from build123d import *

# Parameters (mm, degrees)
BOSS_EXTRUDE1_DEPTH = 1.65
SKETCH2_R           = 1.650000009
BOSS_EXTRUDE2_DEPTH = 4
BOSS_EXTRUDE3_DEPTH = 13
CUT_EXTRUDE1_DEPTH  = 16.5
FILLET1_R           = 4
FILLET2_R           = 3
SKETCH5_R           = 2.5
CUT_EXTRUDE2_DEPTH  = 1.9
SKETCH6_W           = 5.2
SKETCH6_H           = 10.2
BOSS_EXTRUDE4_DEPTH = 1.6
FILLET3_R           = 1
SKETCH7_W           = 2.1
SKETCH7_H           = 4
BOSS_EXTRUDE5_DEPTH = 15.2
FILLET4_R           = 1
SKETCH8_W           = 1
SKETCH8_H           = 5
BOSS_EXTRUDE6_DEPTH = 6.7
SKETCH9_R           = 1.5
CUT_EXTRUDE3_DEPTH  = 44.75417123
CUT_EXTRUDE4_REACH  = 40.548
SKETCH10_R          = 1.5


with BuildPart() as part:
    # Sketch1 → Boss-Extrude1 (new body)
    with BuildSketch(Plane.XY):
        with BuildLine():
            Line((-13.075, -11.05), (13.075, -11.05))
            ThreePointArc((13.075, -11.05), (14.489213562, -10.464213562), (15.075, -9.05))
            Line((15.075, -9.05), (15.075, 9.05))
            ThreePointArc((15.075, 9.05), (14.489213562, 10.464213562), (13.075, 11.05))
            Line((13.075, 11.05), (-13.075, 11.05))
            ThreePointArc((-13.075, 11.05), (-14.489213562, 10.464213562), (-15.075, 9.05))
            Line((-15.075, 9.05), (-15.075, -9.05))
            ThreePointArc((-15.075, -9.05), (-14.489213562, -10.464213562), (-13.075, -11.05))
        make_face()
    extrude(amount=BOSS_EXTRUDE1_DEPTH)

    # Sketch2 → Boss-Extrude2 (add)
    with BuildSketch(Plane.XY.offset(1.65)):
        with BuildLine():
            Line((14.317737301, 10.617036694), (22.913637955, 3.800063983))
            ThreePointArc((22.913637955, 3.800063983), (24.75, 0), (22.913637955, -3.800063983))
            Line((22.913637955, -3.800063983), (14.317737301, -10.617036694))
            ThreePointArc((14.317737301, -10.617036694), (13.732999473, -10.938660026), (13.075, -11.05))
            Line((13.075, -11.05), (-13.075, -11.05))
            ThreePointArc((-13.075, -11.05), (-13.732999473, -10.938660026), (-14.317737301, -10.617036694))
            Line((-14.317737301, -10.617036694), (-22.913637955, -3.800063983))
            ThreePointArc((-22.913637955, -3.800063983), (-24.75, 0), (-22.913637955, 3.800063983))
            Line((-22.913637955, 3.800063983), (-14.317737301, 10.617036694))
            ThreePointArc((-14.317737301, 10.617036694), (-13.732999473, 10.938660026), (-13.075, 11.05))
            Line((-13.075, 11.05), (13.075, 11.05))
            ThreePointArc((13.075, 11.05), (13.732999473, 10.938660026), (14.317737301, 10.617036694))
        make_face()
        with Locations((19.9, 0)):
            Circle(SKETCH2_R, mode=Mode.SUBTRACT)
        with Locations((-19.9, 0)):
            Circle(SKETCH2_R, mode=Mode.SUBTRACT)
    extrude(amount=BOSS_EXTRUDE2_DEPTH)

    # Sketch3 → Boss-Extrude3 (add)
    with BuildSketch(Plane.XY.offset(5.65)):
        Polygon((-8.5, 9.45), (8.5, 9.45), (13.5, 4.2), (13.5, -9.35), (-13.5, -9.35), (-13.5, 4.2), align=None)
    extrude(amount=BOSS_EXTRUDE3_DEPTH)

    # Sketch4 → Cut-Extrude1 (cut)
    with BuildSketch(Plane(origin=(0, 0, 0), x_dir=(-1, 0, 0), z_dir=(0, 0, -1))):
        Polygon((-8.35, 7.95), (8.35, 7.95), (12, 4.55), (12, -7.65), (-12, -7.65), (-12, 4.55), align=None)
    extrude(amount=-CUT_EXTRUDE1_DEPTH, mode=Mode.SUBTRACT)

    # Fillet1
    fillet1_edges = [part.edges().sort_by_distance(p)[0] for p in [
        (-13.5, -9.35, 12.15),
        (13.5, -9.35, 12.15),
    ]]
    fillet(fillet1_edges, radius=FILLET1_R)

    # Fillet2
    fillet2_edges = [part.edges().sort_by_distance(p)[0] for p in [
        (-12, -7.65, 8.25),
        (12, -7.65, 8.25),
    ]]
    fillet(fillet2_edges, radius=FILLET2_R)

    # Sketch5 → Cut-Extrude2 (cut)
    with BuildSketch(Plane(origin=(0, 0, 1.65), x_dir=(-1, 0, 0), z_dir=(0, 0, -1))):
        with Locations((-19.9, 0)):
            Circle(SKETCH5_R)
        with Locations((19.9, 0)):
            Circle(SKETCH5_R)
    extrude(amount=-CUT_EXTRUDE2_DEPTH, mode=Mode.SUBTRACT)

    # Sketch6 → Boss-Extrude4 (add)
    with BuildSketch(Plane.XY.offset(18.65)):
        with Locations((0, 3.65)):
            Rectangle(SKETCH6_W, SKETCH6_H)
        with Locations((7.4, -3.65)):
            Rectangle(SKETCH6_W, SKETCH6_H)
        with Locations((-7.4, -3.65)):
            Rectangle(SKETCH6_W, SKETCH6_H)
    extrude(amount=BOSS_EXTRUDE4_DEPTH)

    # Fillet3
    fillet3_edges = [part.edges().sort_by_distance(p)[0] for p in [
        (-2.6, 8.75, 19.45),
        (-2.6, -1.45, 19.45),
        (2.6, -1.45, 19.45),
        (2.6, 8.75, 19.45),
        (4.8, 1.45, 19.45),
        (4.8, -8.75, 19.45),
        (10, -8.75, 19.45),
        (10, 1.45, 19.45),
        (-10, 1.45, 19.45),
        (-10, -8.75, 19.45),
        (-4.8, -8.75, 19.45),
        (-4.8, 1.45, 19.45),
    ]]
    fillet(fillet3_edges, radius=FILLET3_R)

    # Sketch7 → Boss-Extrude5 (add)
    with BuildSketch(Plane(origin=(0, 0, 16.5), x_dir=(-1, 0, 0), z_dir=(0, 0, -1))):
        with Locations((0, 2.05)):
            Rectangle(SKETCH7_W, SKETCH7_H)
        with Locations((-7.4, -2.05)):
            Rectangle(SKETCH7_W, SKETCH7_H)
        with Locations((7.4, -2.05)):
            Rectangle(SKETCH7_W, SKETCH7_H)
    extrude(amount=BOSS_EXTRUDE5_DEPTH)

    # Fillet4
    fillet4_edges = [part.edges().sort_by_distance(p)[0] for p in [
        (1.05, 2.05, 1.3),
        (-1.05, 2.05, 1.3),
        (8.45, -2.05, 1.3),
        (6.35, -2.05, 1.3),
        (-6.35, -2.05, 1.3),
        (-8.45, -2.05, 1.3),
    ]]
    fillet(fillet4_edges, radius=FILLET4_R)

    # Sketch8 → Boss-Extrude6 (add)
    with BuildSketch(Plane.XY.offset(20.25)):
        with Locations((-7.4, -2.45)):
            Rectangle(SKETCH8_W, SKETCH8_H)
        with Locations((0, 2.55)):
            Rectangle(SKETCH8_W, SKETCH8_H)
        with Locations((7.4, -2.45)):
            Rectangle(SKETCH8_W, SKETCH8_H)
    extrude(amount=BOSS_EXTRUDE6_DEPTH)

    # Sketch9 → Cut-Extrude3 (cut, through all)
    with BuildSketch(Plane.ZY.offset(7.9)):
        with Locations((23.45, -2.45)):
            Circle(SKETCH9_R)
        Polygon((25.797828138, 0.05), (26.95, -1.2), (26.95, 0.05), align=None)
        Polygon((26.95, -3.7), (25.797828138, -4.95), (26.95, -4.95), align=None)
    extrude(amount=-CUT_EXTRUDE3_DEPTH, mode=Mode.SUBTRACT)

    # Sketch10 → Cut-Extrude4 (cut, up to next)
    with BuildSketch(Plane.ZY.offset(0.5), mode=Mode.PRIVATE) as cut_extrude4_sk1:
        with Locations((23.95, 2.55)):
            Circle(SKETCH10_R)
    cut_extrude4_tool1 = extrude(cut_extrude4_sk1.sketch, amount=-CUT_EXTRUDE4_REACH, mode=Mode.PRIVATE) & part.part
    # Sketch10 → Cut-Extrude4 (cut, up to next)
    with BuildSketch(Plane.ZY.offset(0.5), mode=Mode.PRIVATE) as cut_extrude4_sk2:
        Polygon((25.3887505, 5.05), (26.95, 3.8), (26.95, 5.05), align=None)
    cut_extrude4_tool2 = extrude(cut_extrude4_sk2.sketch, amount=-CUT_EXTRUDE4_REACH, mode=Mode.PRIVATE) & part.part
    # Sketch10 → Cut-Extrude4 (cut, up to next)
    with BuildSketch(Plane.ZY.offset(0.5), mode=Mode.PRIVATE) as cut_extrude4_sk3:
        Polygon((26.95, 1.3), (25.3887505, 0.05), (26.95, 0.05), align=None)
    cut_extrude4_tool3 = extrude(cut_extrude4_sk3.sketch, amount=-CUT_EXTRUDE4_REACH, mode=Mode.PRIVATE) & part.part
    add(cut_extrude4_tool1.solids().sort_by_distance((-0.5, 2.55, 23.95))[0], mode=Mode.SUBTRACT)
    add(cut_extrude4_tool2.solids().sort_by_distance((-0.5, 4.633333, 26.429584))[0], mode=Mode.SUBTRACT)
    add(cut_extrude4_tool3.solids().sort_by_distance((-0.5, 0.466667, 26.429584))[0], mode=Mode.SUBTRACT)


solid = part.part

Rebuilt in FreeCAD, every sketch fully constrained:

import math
import FreeCAD as App
import Part
import Sketcher


def edges_at(feature, points):
    """Names of the edges that pass closest to the given points."""
    edges = feature.Shape.Edges
    near = lambda p: min(range(len(edges)), key=lambda i: edges[i].distToShape(Part.Vertex(*p))[0])
    return sorted({f"Edge{near(p) + 1}" for p in points})

doc = App.newDocument("Part")
body = doc.addObject("PartDesign::Body", "Body")

sketch1 = body.newObject("Sketcher::SketchObject", "Sketch")
sketch1.AttachmentSupport = (doc.getObject("XY_Plane"), [""])
sketch1.MapMode = "FlatFace"
sketch1.addGeometry([
    Part.LineSegment(App.Vector(-13.1, -11.1, 0), App.Vector(13.1, -11.1, 0)),
    Part.ArcOfCircle(Part.Circle(App.Vector(13.1, -9, 0), App.Vector(0, 0, 1), 2), math.radians(-90), math.radians(0)),
    Part.LineSegment(App.Vector(15.1, -9.1, 0), App.Vector(15.1, 9.1, 0)),
    Part.ArcOfCircle(Part.Circle(App.Vector(13.1, 9, 0), App.Vector(0, 0, 1), 2), math.radians(0), math.radians(90)),
    Part.LineSegment(App.Vector(13.1, 11.1, 0), App.Vector(-13.1, 11.1, 0)),
    Part.ArcOfCircle(Part.Circle(App.Vector(-13.1, 9, 0), App.Vector(0, 0, 1), 2), math.radians(90), math.radians(180)),
    Part.LineSegment(App.Vector(-15.1, 9.1, 0), App.Vector(-15.1, -9.1, 0)),
    Part.ArcOfCircle(Part.Circle(App.Vector(-13.1, -9, 0), App.Vector(0, 0, 1), 2), math.radians(-180), math.radians(-90)),
], False)
sketch1.addConstraint([
    Sketcher.Constraint("Tangent", 0, 2, 1, 1),
    Sketcher.Constraint("Tangent", 1, 2, 2, 1),
    Sketcher.Constraint("Tangent", 2, 2, 3, 1),
    Sketcher.Constraint("Tangent", 3, 2, 4, 1),
    Sketcher.Constraint("Tangent", 4, 2, 5, 1),
    Sketcher.Constraint("Tangent", 5, 2, 6, 1),
    Sketcher.Constraint("Tangent", 6, 2, 7, 1),
    Sketcher.Constraint("Tangent", 7, 2, 0, 1),
    Sketcher.Constraint("Horizontal", 0),
    Sketcher.Constraint("Vertical", 2),
    Sketcher.Constraint("Horizontal", 4),
    Sketcher.Constraint("Vertical", 6),
    Sketcher.Constraint("Equal", 1, 3),
    Sketcher.Constraint("Equal", 3, 5),
    Sketcher.Constraint("Equal", 5, 7),
    Sketcher.Constraint("Symmetric", 1, 3, 5, 3, -1, 1),
    Sketcher.Constraint("Radius", 1, 2.0),
    Sketcher.Constraint("DistanceY", 2, 1, 2, 2, 18.1),
    Sketcher.Constraint("DistanceX", 0, 1, 0, 2, 26.15),
])
pad1 = body.newObject("PartDesign::Pad", "Pad")
pad1.Profile = sketch1
pad1.Length = 1.65

sketch2 = body.newObject("Sketcher::SketchObject", "Sketch001")
sketch2.AttachmentSupport = (doc.getObject("XY_Plane"), [""])
sketch2.MapMode = "FlatFace"
sketch2.AttachmentOffset = App.Placement(App.Vector(0, 0, 1.65), App.Rotation())
sketch2.addGeometry([
    Part.LineSegment(App.Vector(22.9, 3.8, 0), App.Vector(14.3, 10.6, 0)),
    Part.ArcOfCircle(Part.Circle(App.Vector(13.1, 9.1, 0), App.Vector(0, 0, 1), 2), math.radians(52), math.radians(90)),
    Part.LineSegment(App.Vector(13.1, 11.1, 0), App.Vector(-13.1, 11.1, 0)),
    Part.ArcOfCircle(Part.Circle(App.Vector(-13.1, 9.1, 0), App.Vector(0, 0, 1), 2), math.radians(90), math.radians(128)),
    Part.LineSegment(App.Vector(-14.3, 10.6, 0), App.Vector(-22.9, 3.8, 0)),
    Part.ArcOfCircle(Part.Circle(App.Vector(-19.9, 0, 0), App.Vector(0, 0, 1), 4.8), math.radians(128), math.radians(232)),
    Part.LineSegment(App.Vector(-22.9, -3.8, 0), App.Vector(-14.3, -10.6, 0)),
    Part.ArcOfCircle(Part.Circle(App.Vector(-13.1, -9.1, 0), App.Vector(0, 0, 1), 2), math.radians(-128), math.radians(-90)),
    Part.LineSegment(App.Vector(-13.1, -11.1, 0), App.Vector(13.1, -11.1, 0)),
    Part.ArcOfCircle(Part.Circle(App.Vector(13.1, -9.1, 0), App.Vector(0, 0, 1), 2), math.radians(-90), math.radians(-52)),
    Part.LineSegment(App.Vector(14.3, -10.6, 0), App.Vector(22.9, -3.8, 0)),
    Part.ArcOfCircle(Part.Circle(App.Vector(19.9, 0, 0), App.Vector(0, 0, 1), 4.8), math.radians(-52), math.radians(52)),
    Part.Circle(App.Vector(19.9, 0, 0), App.Vector(0, 0, 1), 1.7),
    Part.Circle(App.Vector(-19.9, 0, 0), App.Vector(0, 0, 1), 1.7),
], False)
sketch2.addConstraint([
    Sketcher.Constraint("Tangent", 0, 2, 1, 1),
    Sketcher.Constraint("Tangent", 1, 2, 2, 1),
    Sketcher.Constraint("Tangent", 2, 2, 3, 1),
    Sketcher.Constraint("Tangent", 3, 2, 4, 1),
    Sketcher.Constraint("Tangent", 4, 2, 5, 1),
    Sketcher.Constraint("Tangent", 5, 2, 6, 1),
    Sketcher.Constraint("Tangent", 6, 2, 7, 1),
    Sketcher.Constraint("Tangent", 7, 2, 8, 1),
    Sketcher.Constraint("Tangent", 8, 2, 9, 1),
    Sketcher.Constraint("Tangent", 9, 2, 10, 1),
    Sketcher.Constraint("Tangent", 10, 2, 11, 1),
    Sketcher.Constraint("Tangent", 11, 2, 0, 1),
    Sketcher.Constraint("Horizontal", 2),
    Sketcher.Constraint("Horizontal", 8),
    Sketcher.Constraint("Coincident", 12, 3, 11, 3),
    Sketcher.Constraint("Coincident", 13, 3, 5, 3),
    Sketcher.Constraint("Equal", 1, 3),
    Sketcher.Constraint("Equal", 3, 7),
    Sketcher.Constraint("Equal", 7, 9),
    Sketcher.Constraint("Equal", 5, 11),
    Sketcher.Constraint("Equal", 12, 13),
    Sketcher.Constraint("Symmetric", 1, 3, 7, 3, -1, 1),
    Sketcher.Constraint("Symmetric", 5, 3, 11, 3, -1, 1),
    Sketcher.Constraint("Symmetric", 0, 2, 3, 2, -2),
    Sketcher.Constraint("Parallel", 4, 10),
    Sketcher.Constraint("Radius", 1, 2.0),
    Sketcher.Constraint("Diameter", 12, 3.3),
    Sketcher.Constraint("Radius", 5, 4.85),
    Sketcher.Constraint("DistanceX", 2, 2, 2, 1, 26.15),
    Sketcher.Constraint("DistanceX", 5, 3, -1, 1, 19.9),
    Sketcher.Constraint("DistanceY", 7, 3, 3, 3, 18.1),
])
pad2 = body.newObject("PartDesign::Pad", "Pad001")
pad2.Profile = sketch2
pad2.Length = 4

sketch3 = body.newObject("Sketcher::SketchObject", "Sketch002")
sketch3.AttachmentSupport = (doc.getObject("XY_Plane"), [""])
sketch3.MapMode = "FlatFace"
sketch3.AttachmentOffset = App.Placement(App.Vector(0, 0, 5.65), App.Rotation())
sketch3.addGeometry([
    Part.LineSegment(App.Vector(8, 9, 0), App.Vector(-8, 9, 0)),
    Part.LineSegment(App.Vector(-8, 9, 0), App.Vector(-14, 4, 0)),
    Part.LineSegment(App.Vector(-14, 4, 0), App.Vector(-14, -9, 0)),
    Part.LineSegment(App.Vector(-14, -9, 0), App.Vector(14, -9, 0)),
    Part.LineSegment(App.Vector(14, -9, 0), App.Vector(14, 4, 0)),
    Part.LineSegment(App.Vector(14, 4, 0), App.Vector(8, 9, 0)),
], False)
sketch3.addConstraint([
    Sketcher.Constraint("Coincident", 0, 2, 1, 1),
    Sketcher.Constraint("Coincident", 1, 2, 2, 1),
    Sketcher.Constraint("Coincident", 2, 2, 3, 1),
    Sketcher.Constraint("Coincident", 3, 2, 4, 1),
    Sketcher.Constraint("Coincident", 4, 2, 5, 1),
    Sketcher.Constraint("Coincident", 5, 2, 0, 1),
    Sketcher.Constraint("Horizontal", 0),
    Sketcher.Constraint("Vertical", 2),
    Sketcher.Constraint("Horizontal", 3),
    Sketcher.Constraint("Vertical", 4),
    Sketcher.Constraint("Symmetric", 1, 2, 4, 2, -2),
    Sketcher.Constraint("Equal", 1, 5),
    Sketcher.Constraint("DistanceX", 0, 2, 0, 1, 17.0),
    Sketcher.Constraint("DistanceX", 3, 1, 3, 2, 27.0),
    Sketcher.Constraint("DistanceY", 2, 2, 2, 1, 13.55),
    Sketcher.Constraint("DistanceY", -1, 1, 1, 2, 4.2),
    Sketcher.Constraint("DistanceY", 2, 2, 0, 2, 18.8),
])
pad3 = body.newObject("PartDesign::Pad", "Pad002")
pad3.Profile = sketch3
pad3.Length = 13

sketch4 = body.newObject("Sketcher::SketchObject", "Sketch003")
sketch4.AttachmentSupport = (doc.getObject("XY_Plane"), [""])
sketch4.MapMode = "FlatFace"
sketch4.addGeometry([
    Part.LineSegment(App.Vector(-8.3, 8, 0), App.Vector(8.3, 8, 0)),
    Part.LineSegment(App.Vector(8.3, 8, 0), App.Vector(12, 4.5, 0)),
    Part.LineSegment(App.Vector(12, 4.5, 0), App.Vector(12, -7.7, 0)),
    Part.LineSegment(App.Vector(12, -7.7, 0), App.Vector(-12, -7.7, 0)),
    Part.LineSegment(App.Vector(-12, -7.7, 0), App.Vector(-12, 4.5, 0)),
    Part.LineSegment(App.Vector(-12, 4.5, 0), App.Vector(-8.3, 8, 0)),
], False)
sketch4.addConstraint([
    Sketcher.Constraint("Coincident", 0, 2, 1, 1),
    Sketcher.Constraint("Coincident", 1, 2, 2, 1),
    Sketcher.Constraint("Coincident", 2, 2, 3, 1),
    Sketcher.Constraint("Coincident", 3, 2, 4, 1),
    Sketcher.Constraint("Coincident", 4, 2, 5, 1),
    Sketcher.Constraint("Coincident", 5, 2, 0, 1),
    Sketcher.Constraint("Horizontal", 0),
    Sketcher.Constraint("Vertical", 2),
    Sketcher.Constraint("Horizontal", 3),
    Sketcher.Constraint("Vertical", 4),
    Sketcher.Constraint("Symmetric", 1, 2, 4, 2, -2),
    Sketcher.Constraint("Equal", 1, 5),
    Sketcher.Constraint("DistanceX", 3, 2, 3, 1, 24.0),
    Sketcher.Constraint("DistanceX", 0, 1, 0, 2, 16.7),
    Sketcher.Constraint("DistanceY", 2, 2, 2, 1, 12.2),
    Sketcher.Constraint("DistanceY", 1, 2, 0, 2, 3.4),
    Sketcher.Constraint("DistanceY", -1, 1, 0, 2, 7.95),
])
pocket1 = body.newObject("PartDesign::Pocket", "Pocket")
pocket1.Profile = sketch4
pocket1.Length = 16.5
pocket1.Reversed = True
doc.recompute()

fillet = body.newObject("PartDesign::Fillet", "Fillet")
fillet.Base = (pocket1, edges_at(pocket1, [(-13.5, -9.35, 12.15), (13.5, -9.35, 12.15)]))
fillet.Radius = 4
doc.recompute()

fillet2 = body.newObject("PartDesign::Fillet", "Fillet001")
fillet2.Base = (fillet, edges_at(fillet, [(-12, -7.65, 8.25), (12, -7.65, 8.25)]))
fillet2.Radius = 3

sketch5 = body.newObject("Sketcher::SketchObject", "Sketch004")
sketch5.AttachmentSupport = (doc.getObject("XY_Plane"), [""])
sketch5.MapMode = "FlatFace"
sketch5.AttachmentOffset = App.Placement(App.Vector(0, 0, 1.65), App.Rotation())
sketch5.addGeometry([
    Part.Circle(App.Vector(19.9, 0, 0), App.Vector(0, 0, 1), 2.5),
    Part.Circle(App.Vector(-19.9, 0, 0), App.Vector(0, 0, 1), 2.5),
], False)
sketch5.addConstraint([
    Sketcher.Constraint("Equal", 0, 1),
    Sketcher.Constraint("Symmetric", 0, 3, 1, 3, -1, 1),
    Sketcher.Constraint("PointOnObject", 0, 3, -1),
    Sketcher.Constraint("Diameter", 0, 5.0),
    Sketcher.Constraint("DistanceX", -1, 1, 0, 3, 19.9),
])
pocket2 = body.newObject("PartDesign::Pocket", "Pocket001")
pocket2.Profile = sketch5
pocket2.Length = 1.9
pocket2.Reversed = True

sketch6 = body.newObject("Sketcher::SketchObject", "Sketch005")
sketch6.AttachmentSupport = (doc.getObject("XY_Plane"), [""])
sketch6.MapMode = "FlatFace"
sketch6.AttachmentOffset = App.Placement(App.Vector(0, 0, 18.65), App.Rotation())
sketch6.addGeometry([
    Part.LineSegment(App.Vector(-3, 9, 0), App.Vector(-3, -1, 0)),
    Part.LineSegment(App.Vector(-3, -1, 0), App.Vector(3, -1, 0)),
    Part.LineSegment(App.Vector(3, -1, 0), App.Vector(3, 9, 0)),
    Part.LineSegment(App.Vector(3, 9, 0), App.Vector(-3, 9, 0)),
    Part.LineSegment(App.Vector(5, 1, 0), App.Vector(5, -9, 0)),
    Part.LineSegment(App.Vector(5, -9, 0), App.Vector(10, -9, 0)),
    Part.LineSegment(App.Vector(10, -9, 0), App.Vector(10, 1, 0)),
    Part.LineSegment(App.Vector(10, 1, 0), App.Vector(5, 1, 0)),
    Part.LineSegment(App.Vector(-10, 1, 0), App.Vector(-10, -9, 0)),
    Part.LineSegment(App.Vector(-10, -9, 0), App.Vector(-5, -9, 0)),
    Part.LineSegment(App.Vector(-5, -9, 0), App.Vector(-5, 1, 0)),
    Part.LineSegment(App.Vector(-5, 1, 0), App.Vector(-10, 1, 0)),
], False)
sketch6.addConstraint([
    Sketcher.Constraint("Coincident", 0, 2, 1, 1),
    Sketcher.Constraint("Coincident", 1, 2, 2, 1),
    Sketcher.Constraint("Coincident", 2, 2, 3, 1),
    Sketcher.Constraint("Coincident", 3, 2, 0, 1),
    Sketcher.Constraint("Coincident", 4, 2, 5, 1),
    Sketcher.Constraint("Coincident", 5, 2, 6, 1),
    Sketcher.Constraint("Coincident", 6, 2, 7, 1),
    Sketcher.Constraint("Coincident", 7, 2, 4, 1),
    Sketcher.Constraint("Coincident", 8, 2, 9, 1),
    Sketcher.Constraint("Coincident", 9, 2, 10, 1),
    Sketcher.Constraint("Coincident", 10, 2, 11, 1),
    Sketcher.Constraint("Coincident", 11, 2, 8, 1),
    Sketcher.Constraint("Vertical", 0),
    Sketcher.Constraint("Horizontal", 1),
    Sketcher.Constraint("Vertical", 2),
    Sketcher.Constraint("Horizontal", 3),
    Sketcher.Constraint("Vertical", 4),
    Sketcher.Constraint("Horizontal", 5),
    Sketcher.Constraint("Vertical", 6),
    Sketcher.Constraint("Horizontal", 7),
    Sketcher.Constraint("Vertical", 8),
    Sketcher.Constraint("Horizontal", 9),
    Sketcher.Constraint("Vertical", 10),
    Sketcher.Constraint("Horizontal", 11),
    Sketcher.Constraint("Symmetric", 5, 2, 8, 2, -2),
    Sketcher.Constraint("Symmetric", 7, 2, 10, 2, -2),
    Sketcher.Constraint("Equal", 3, 5),
    Sketcher.Constraint("Equal", 2, 4),
    Sketcher.Constraint("DistanceX", 1, 1, 1, 2, 5.2),
    Sketcher.Constraint("DistanceY", 0, 2, 0, 1, 10.2),
    Sketcher.Constraint("DistanceX", -1, 1, 5, 2, 10.0),
    Sketcher.Constraint("DistanceX", 0, 2, -1, 1, 2.6),
    Sketcher.Constraint("DistanceY", 4, 2, 1, 2, 7.3),
    Sketcher.Constraint("DistanceY", 0, 2, -1, 1, 1.45),
])
pad4 = body.newObject("PartDesign::Pad", "Pad003")
pad4.Profile = sketch6
pad4.Length = 1.6
doc.recompute()

fillet3 = body.newObject("PartDesign::Fillet", "Fillet002")
fillet3.Base = (pad4, edges_at(pad4, [
    (-2.6, 8.75, 19.45),
    (-2.6, -1.45, 19.45),
    (2.6, -1.45, 19.45),
    (2.6, 8.75, 19.45),
    (4.8, 1.45, 19.45),
    (4.8, -8.75, 19.45),
    (10, -8.75, 19.45),
    (10, 1.45, 19.45),
    (-10, 1.45, 19.45),
    (-10, -8.75, 19.45),
    (-4.8, -8.75, 19.45),
    (-4.8, 1.45, 19.45),
]))
fillet3.Radius = 1

sketch7 = body.newObject("Sketcher::SketchObject", "Sketch006")
sketch7.AttachmentSupport = (doc.getObject("XY_Plane"), [""])
sketch7.MapMode = "FlatFace"
sketch7.AttachmentOffset = App.Placement(App.Vector(0, 0, 16.5), App.Rotation())
sketch7.addGeometry([
    Part.LineSegment(App.Vector(1.1, 4, 0), App.Vector(1.1, 0.1, 0)),
    Part.LineSegment(App.Vector(1.1, 0.1, 0), App.Vector(-1.1, 0.1, 0)),
    Part.LineSegment(App.Vector(-1.1, 0.1, 0), App.Vector(-1.1, 4, 0)),
    Part.LineSegment(App.Vector(-1.1, 4, 0), App.Vector(1.1, 4, 0)),
    Part.LineSegment(App.Vector(8.4, -0.1, 0), App.Vector(8.4, -4, 0)),
    Part.LineSegment(App.Vector(8.4, -4, 0), App.Vector(6.3, -4, 0)),
    Part.LineSegment(App.Vector(6.3, -4, 0), App.Vector(6.3, -0.1, 0)),
    Part.LineSegment(App.Vector(6.3, -0.1, 0), App.Vector(8.4, -0.1, 0)),
    Part.LineSegment(App.Vector(-6.3, -0.1, 0), App.Vector(-6.3, -4, 0)),
    Part.LineSegment(App.Vector(-6.3, -4, 0), App.Vector(-8.4, -4, 0)),
    Part.LineSegment(App.Vector(-8.4, -4, 0), App.Vector(-8.4, -0.1, 0)),
    Part.LineSegment(App.Vector(-8.4, -0.1, 0), App.Vector(-6.3, -0.1, 0)),
], False)
sketch7.addConstraint([
    Sketcher.Constraint("Coincident", 0, 2, 1, 1),
    Sketcher.Constraint("Coincident", 1, 2, 2, 1),
    Sketcher.Constraint("Coincident", 2, 2, 3, 1),
    Sketcher.Constraint("Coincident", 3, 2, 0, 1),
    Sketcher.Constraint("Coincident", 4, 2, 5, 1),
    Sketcher.Constraint("Coincident", 5, 2, 6, 1),
    Sketcher.Constraint("Coincident", 6, 2, 7, 1),
    Sketcher.Constraint("Coincident", 7, 2, 4, 1),
    Sketcher.Constraint("Coincident", 8, 2, 9, 1),
    Sketcher.Constraint("Coincident", 9, 2, 10, 1),
    Sketcher.Constraint("Coincident", 10, 2, 11, 1),
    Sketcher.Constraint("Coincident", 11, 2, 8, 1),
    Sketcher.Constraint("Vertical", 0),
    Sketcher.Constraint("Horizontal", 1),
    Sketcher.Constraint("Vertical", 2),
    Sketcher.Constraint("Horizontal", 3),
    Sketcher.Constraint("Vertical", 4),
    Sketcher.Constraint("Horizontal", 5),
    Sketcher.Constraint("Vertical", 6),
    Sketcher.Constraint("Horizontal", 7),
    Sketcher.Constraint("Vertical", 8),
    Sketcher.Constraint("Horizontal", 9),
    Sketcher.Constraint("Vertical", 10),
    Sketcher.Constraint("Horizontal", 11),
    Sketcher.Constraint("Symmetric", 5, 2, 8, 2, -2),
    Sketcher.Constraint("Symmetric", 7, 2, 10, 2, -2),
    Sketcher.Constraint("Equal", 3, 5),
    Sketcher.Constraint("Equal", 2, 4),
    Sketcher.Constraint("DistanceY", 0, 2, 0, 1, 4.0),
    Sketcher.Constraint("DistanceX", 1, 2, 1, 1, 2.1),
    Sketcher.Constraint("DistanceX", 0, 2, 4, 2, 7.4),
    Sketcher.Constraint("DistanceY", 4, 2, 0, 2, 4.1),
    Sketcher.Constraint("DistanceX", 8, 2, 1, 2, 5.3),
    Sketcher.Constraint("DistanceY", -1, 1, 0, 2, 0.05),
])
pad5 = body.newObject("PartDesign::Pad", "Pad004")
pad5.Profile = sketch7
pad5.Length = 15.2
pad5.Reversed = True
doc.recompute()

fillet4 = body.newObject("PartDesign::Fillet", "Fillet003")
fillet4.Base = (pad5, edges_at(pad5, [
    (1.05, 2.05, 1.3),
    (-1.05, 2.05, 1.3),
    (8.45, -2.05, 1.3),
    (6.35, -2.05, 1.3),
    (-6.35, -2.05, 1.3),
    (-8.45, -2.05, 1.3),
]))
fillet4.Radius = 1

sketch8 = body.newObject("Sketcher::SketchObject", "Sketch007")
sketch8.AttachmentSupport = (doc.getObject("XY_Plane"), [""])
sketch8.MapMode = "FlatFace"
sketch8.AttachmentOffset = App.Placement(App.Vector(0, 0, 20.25), App.Rotation())
sketch8.addGeometry([
    Part.LineSegment(App.Vector(-7.9, 0.1, 0), App.Vector(-7.9, -5, 0)),
    Part.LineSegment(App.Vector(-7.9, -5, 0), App.Vector(-6.9, -5, 0)),
    Part.LineSegment(App.Vector(-6.9, -5, 0), App.Vector(-6.9, 0.1, 0)),
    Part.LineSegment(App.Vector(-6.9, 0.1, 0), App.Vector(-7.9, 0.1, 0)),
    Part.LineSegment(App.Vector(-0.5, 5, 0), App.Vector(-0.5, 0.1, 0)),
    Part.LineSegment(App.Vector(-0.5, 0.1, 0), App.Vector(0.5, 0.1, 0)),
    Part.LineSegment(App.Vector(0.5, 0.1, 0), App.Vector(0.5, 5, 0)),
    Part.LineSegment(App.Vector(0.5, 5, 0), App.Vector(-0.5, 5, 0)),
    Part.LineSegment(App.Vector(6.9, 0.1, 0), App.Vector(6.9, -5, 0)),
    Part.LineSegment(App.Vector(6.9, -5, 0), App.Vector(7.9, -5, 0)),
    Part.LineSegment(App.Vector(7.9, -5, 0), App.Vector(7.9, 0.1, 0)),
    Part.LineSegment(App.Vector(7.9, 0.1, 0), App.Vector(6.9, 0.1, 0)),
], False)
sketch8.addConstraint([
    Sketcher.Constraint("Coincident", 0, 2, 1, 1),
    Sketcher.Constraint("Coincident", 1, 2, 2, 1),
    Sketcher.Constraint("Coincident", 2, 2, 3, 1),
    Sketcher.Constraint("Coincident", 3, 2, 0, 1),
    Sketcher.Constraint("Coincident", 4, 2, 5, 1),
    Sketcher.Constraint("Coincident", 5, 2, 6, 1),
    Sketcher.Constraint("Coincident", 6, 2, 7, 1),
    Sketcher.Constraint("Coincident", 7, 2, 4, 1),
    Sketcher.Constraint("Coincident", 8, 2, 9, 1),
    Sketcher.Constraint("Coincident", 9, 2, 10, 1),
    Sketcher.Constraint("Coincident", 10, 2, 11, 1),
    Sketcher.Constraint("Coincident", 11, 2, 8, 1),
    Sketcher.Constraint("Vertical", 0),
    Sketcher.Constraint("Horizontal", 1),
    Sketcher.Constraint("Vertical", 2),
    Sketcher.Constraint("Horizontal", 3),
    Sketcher.Constraint("Vertical", 4),
    Sketcher.Constraint("Horizontal", 5),
    Sketcher.Constraint("Vertical", 6),
    Sketcher.Constraint("Horizontal", 7),
    Sketcher.Constraint("Vertical", 8),
    Sketcher.Constraint("Horizontal", 9),
    Sketcher.Constraint("Vertical", 10),
    Sketcher.Constraint("Horizontal", 11),
    Sketcher.Constraint("Symmetric", 1, 2, 8, 2, -2),
    Sketcher.Constraint("Symmetric", 3, 2, 10, 2, -2),
    Sketcher.Constraint("Horizontal", 3, 2, 4, 2),
    Sketcher.Constraint("Equal", 3, 5),
    Sketcher.Constraint("Equal", 2, 4),
    Sketcher.Constraint("DistanceX", 1, 1, 1, 2, 1.0),
    Sketcher.Constraint("DistanceY", 0, 2, 0, 1, 5.0),
    Sketcher.Constraint("DistanceX", 0, 2, -1, 1, 7.9),
    Sketcher.Constraint("DistanceX", 4, 2, -1, 1, 0.5),
    Sketcher.Constraint("DistanceY", 0, 2, -1, 1, 4.95),
])
pad6 = body.newObject("PartDesign::Pad", "Pad005")
pad6.Profile = sketch8
pad6.Length = 6.7

sketch9 = body.newObject("Sketcher::SketchObject", "Sketch008")
sketch9.AttachmentSupport = (doc.getObject("YZ_Plane"), [""])
sketch9.MapMode = "FlatFace"
sketch9.AttachmentOffset = App.Placement(App.Vector(0, 0, -7.9), App.Rotation())
sketch9.addGeometry([
    Part.Circle(App.Vector(-2.5, 23.4, 0), App.Vector(0, 0, 1), 1.5),
    Part.LineSegment(App.Vector(0.1, 25.8, 0), App.Vector(-1.2, 26.9, 0)),
    Part.LineSegment(App.Vector(-1.2, 26.9, 0), App.Vector(0.1, 26.9, 0)),
    Part.LineSegment(App.Vector(0.1, 26.9, 0), App.Vector(0.1, 25.8, 0)),
    Part.LineSegment(App.Vector(-3.7, 26.9, 0), App.Vector(-5, 25.8, 0)),
    Part.LineSegment(App.Vector(-5, 25.8, 0), App.Vector(-5, 26.9, 0)),
    Part.LineSegment(App.Vector(-5, 26.9, 0), App.Vector(-3.7, 26.9, 0)),
], False)
sketch9.addConstraint([
    Sketcher.Constraint("Coincident", 1, 2, 2, 1),
    Sketcher.Constraint("Coincident", 2, 2, 3, 1),
    Sketcher.Constraint("Coincident", 3, 2, 1, 1),
    Sketcher.Constraint("Coincident", 4, 2, 5, 1),
    Sketcher.Constraint("Coincident", 5, 2, 6, 1),
    Sketcher.Constraint("Coincident", 6, 2, 4, 1),
    Sketcher.Constraint("Horizontal", 2),
    Sketcher.Constraint("Vertical", 3),
    Sketcher.Constraint("Vertical", 5),
    Sketcher.Constraint("Horizontal", 6),
    Sketcher.Constraint("Horizontal", 3, 2, 4, 2),
    Sketcher.Constraint("Horizontal", 2, 2, 5, 2),
    Sketcher.Constraint("Equal", 2, 6),
    Sketcher.Constraint("Diameter", 0, 3.0),
    Sketcher.Constraint("DistanceX", 4, 2, 3, 2, 5.0),
    Sketcher.Constraint("Distance", 1, 1.7),
    Sketcher.Constraint("DistanceX", 2, 1, 2, 2, 1.25),
    Sketcher.Constraint("DistanceX", 1, 2, -1, 1, 1.2),
    Sketcher.Constraint("DistanceY", 0, 3, 1, 2, 3.5),
    Sketcher.Constraint("DistanceX", 0, 3, 2, 2, 2.5),
    Sketcher.Constraint("DistanceY", -1, 1, 0, 3, 23.45),
])
pocket3 = body.newObject("PartDesign::Pocket", "Pocket002")
pocket3.Profile = sketch9
pocket3.Type = "ThroughAll"
pocket3.Reversed = True

sketch10 = body.newObject("Sketcher::SketchObject", "Sketch009")
sketch10.AttachmentSupport = (doc.getObject("YZ_Plane"), [""])
sketch10.MapMode = "FlatFace"
sketch10.AttachmentOffset = App.Placement(App.Vector(0, 0, -0.5), App.Rotation())
sketch10.addGeometry(Part.Circle(App.Vector(2.5, 23.9, 0), App.Vector(0, 0, 1), 1.5), False)
sketch10.addConstraint([
    Sketcher.Constraint("Diameter", 0, 3.0),
    Sketcher.Constraint("DistanceX", -1, 1, 0, 3, 2.55),
    Sketcher.Constraint("DistanceY", -1, 1, 0, 3, 23.95),
])
pocket4 = body.newObject("PartDesign::Pocket", "Pocket003")
pocket4.Profile = sketch10
pocket4.Type = "UpToFirst"
pocket4.Reversed = True

sketch11 = body.newObject("Sketcher::SketchObject", "Sketch010")
sketch11.AttachmentSupport = (doc.getObject("YZ_Plane"), [""])
sketch11.MapMode = "FlatFace"
sketch11.AttachmentOffset = App.Placement(App.Vector(0, 0, -0.5), App.Rotation())
sketch11.addGeometry([
    Part.LineSegment(App.Vector(5, 25.4, 0), App.Vector(3.8, 26.9, 0)),
    Part.LineSegment(App.Vector(3.8, 26.9, 0), App.Vector(5, 26.9, 0)),
    Part.LineSegment(App.Vector(5, 26.9, 0), App.Vector(5, 25.4, 0)),
], False)
sketch11.addConstraint([
    Sketcher.Constraint("Coincident", 0, 2, 1, 1),
    Sketcher.Constraint("Coincident", 1, 2, 2, 1),
    Sketcher.Constraint("Coincident", 2, 2, 0, 1),
    Sketcher.Constraint("Horizontal", 1),
    Sketcher.Constraint("Vertical", 2),
    Sketcher.Constraint("Distance", 0, 2.0),
    Sketcher.Constraint("DistanceX", 1, 1, 1, 2, 1.25),
    Sketcher.Constraint("DistanceX", -1, 1, 0, 2, 3.8),
    Sketcher.Constraint("DistanceY", -1, 1, 0, 2, 26.95),
])
pocket5 = body.newObject("PartDesign::Pocket", "Pocket004")
pocket5.Profile = sketch11
pocket5.Type = "UpToFirst"
pocket5.Reversed = True

sketch12 = body.newObject("Sketcher::SketchObject", "Sketch011")
sketch12.AttachmentSupport = (doc.getObject("YZ_Plane"), [""])
sketch12.MapMode = "FlatFace"
sketch12.AttachmentOffset = App.Placement(App.Vector(0, 0, -0.5), App.Rotation())
sketch12.addGeometry([
    Part.LineSegment(App.Vector(1.3, 26.9, 0), App.Vector(0.1, 25.4, 0)),
    Part.LineSegment(App.Vector(0.1, 25.4, 0), App.Vector(0.1, 26.9, 0)),
    Part.LineSegment(App.Vector(0.1, 26.9, 0), App.Vector(1.3, 26.9, 0)),
], False)
sketch12.addConstraint([
    Sketcher.Constraint("Coincident", 0, 2, 1, 1),
    Sketcher.Constraint("Coincident", 1, 2, 2, 1),
    Sketcher.Constraint("Coincident", 2, 2, 0, 1),
    Sketcher.Constraint("Vertical", 1),
    Sketcher.Constraint("Horizontal", 2),
    Sketcher.Constraint("Distance", 0, 2.0),
    Sketcher.Constraint("DistanceX", 2, 1, 2, 2, 1.25),
    Sketcher.Constraint("DistanceX", -1, 1, 2, 2, 1.3),
    Sketcher.Constraint("DistanceY", -1, 1, 1, 2, 26.95),
])
pocket6 = body.newObject("PartDesign::Pocket", "Pocket005")
pocket6.Profile = sketch12
pocket6.Type = "UpToFirst"
pocket6.Reversed = True

doc.recompute()
